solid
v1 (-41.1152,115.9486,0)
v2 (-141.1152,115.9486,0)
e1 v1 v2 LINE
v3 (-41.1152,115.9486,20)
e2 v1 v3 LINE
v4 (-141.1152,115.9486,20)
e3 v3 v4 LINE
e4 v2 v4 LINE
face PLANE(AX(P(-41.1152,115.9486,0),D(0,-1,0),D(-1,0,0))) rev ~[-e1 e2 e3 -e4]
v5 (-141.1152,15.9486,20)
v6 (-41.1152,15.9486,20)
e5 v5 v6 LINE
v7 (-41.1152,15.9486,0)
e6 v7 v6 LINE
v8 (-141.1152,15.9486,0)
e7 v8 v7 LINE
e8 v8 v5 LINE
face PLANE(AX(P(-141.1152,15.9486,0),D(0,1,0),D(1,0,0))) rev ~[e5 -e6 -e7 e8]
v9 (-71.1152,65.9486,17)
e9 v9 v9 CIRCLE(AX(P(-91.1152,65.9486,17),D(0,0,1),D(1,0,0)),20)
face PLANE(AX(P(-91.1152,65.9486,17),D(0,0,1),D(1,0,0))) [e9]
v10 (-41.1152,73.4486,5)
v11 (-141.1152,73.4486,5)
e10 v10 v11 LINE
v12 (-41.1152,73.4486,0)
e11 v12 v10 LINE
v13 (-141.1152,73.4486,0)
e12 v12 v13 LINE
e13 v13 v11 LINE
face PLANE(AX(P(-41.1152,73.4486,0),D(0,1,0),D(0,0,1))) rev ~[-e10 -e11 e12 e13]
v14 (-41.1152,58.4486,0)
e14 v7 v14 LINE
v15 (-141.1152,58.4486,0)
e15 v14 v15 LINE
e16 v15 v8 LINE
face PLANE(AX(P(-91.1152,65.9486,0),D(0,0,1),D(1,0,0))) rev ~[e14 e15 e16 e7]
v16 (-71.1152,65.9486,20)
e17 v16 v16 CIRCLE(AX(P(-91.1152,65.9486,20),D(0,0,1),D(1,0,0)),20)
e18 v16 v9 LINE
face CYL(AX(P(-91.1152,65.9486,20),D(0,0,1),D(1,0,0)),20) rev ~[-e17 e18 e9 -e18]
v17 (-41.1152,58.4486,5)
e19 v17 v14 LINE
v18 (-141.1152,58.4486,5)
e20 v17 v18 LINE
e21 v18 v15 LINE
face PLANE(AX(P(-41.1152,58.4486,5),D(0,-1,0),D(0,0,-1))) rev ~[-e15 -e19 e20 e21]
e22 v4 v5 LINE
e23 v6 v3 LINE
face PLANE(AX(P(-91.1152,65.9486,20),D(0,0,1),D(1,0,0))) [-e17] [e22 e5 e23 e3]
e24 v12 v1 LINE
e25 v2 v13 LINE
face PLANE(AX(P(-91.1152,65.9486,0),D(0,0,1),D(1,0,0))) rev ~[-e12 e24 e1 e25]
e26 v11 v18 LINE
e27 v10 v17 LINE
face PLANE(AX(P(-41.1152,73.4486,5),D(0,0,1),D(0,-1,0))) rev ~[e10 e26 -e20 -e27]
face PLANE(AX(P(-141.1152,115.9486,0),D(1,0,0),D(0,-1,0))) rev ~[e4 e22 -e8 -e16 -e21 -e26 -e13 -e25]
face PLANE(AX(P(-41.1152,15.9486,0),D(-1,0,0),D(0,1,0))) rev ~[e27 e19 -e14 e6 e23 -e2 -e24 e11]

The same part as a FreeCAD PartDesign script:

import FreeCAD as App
import Part
import Sketcher
from FreeCAD import Vector
Q = App.Units.Quantity


def add_polygon(sketch, points):
    """Adds a closed chain of lines whose ends are joined by coincident constraints."""
    first, n = sketch.GeometryCount, len(points)
    for a, b in zip(points, points[1:] + points[:1]):
        sketch.addGeometry(Part.LineSegment(App.Vector(*a, 0), App.Vector(*b, 0)), False)
    for i in range(n):
        sketch.addConstraint(Sketcher.Constraint("Coincident", first + i, 2, first + (i + 1) % n, 1))

doc = App.newDocument("Part")
body = doc.addObject("PartDesign::Body", "Body")

sketch1 = body.newObject("Sketcher::SketchObject", "Sketch")
sketch1.AttachmentSupport = (doc.getObject("XY_Plane"), [""])
sketch1.MapMode = "FlatFace"
add_polygon(sketch1, [(-141, 116), (-141, 16), (-41, 16), (-41, 116)])
sketch1.addConstraint(Sketcher.Constraint("Vertical", 0))
sketch1.addConstraint(Sketcher.Constraint("Horizontal", 1))
sketch1.addConstraint(Sketcher.Constraint("Vertical", 2))
sketch1.addConstraint(Sketcher.Constraint("Horizontal", 3))
sketch1.addConstraint(Sketcher.Constraint("Equal", 3, 0))
sketch1.addConstraint(Sketcher.Constraint("DistanceX", 1, 1, 1, 2, Q("100 mm")))
sketch1.addConstraint(Sketcher.Constraint("DistanceX", 0, 2, -1, 1, Q("141.1152 mm")))
sketch1.addConstraint(Sketcher.Constraint("DistanceY", -1, 1, 0, 2, Q("15.9486 mm")))
pad1 = body.newObject("PartDesign::Pad", "Pad")
pad1.Profile = sketch1
pad1.Length = 20

sketch2 = body.newObject("Sketcher::SketchObject", "Sketch001")
sketch2.AttachmentSupport = (doc.getObject("XY_Plane"), [""])
sketch2.MapMode = "FlatFace"
sketch2.AttachmentOffset = App.Placement(Vector(0, 0, 20), App.Rotation())
sketch2.addGeometry(Part.Circle(Vector(-91, 66, 0), Vector(0, 0, 1), 20), False)
sketch2.addConstraint(Sketcher.Constraint("Diameter", 0, Q("40 mm")))
sketch2.addConstraint(Sketcher.Constraint("DistanceX", 0, 3, -1, 1, Q("91.1152 mm")))
sketch2.addConstraint(Sketcher.Constraint("DistanceY", -1, 1, 0, 3, Q("65.9486 mm")))
pocket1 = body.newObject("PartDesign::Pocket", "Pocket")
pocket1.Profile = sketch2
pocket1.Length = 3

sketch3 = body.newObject("Sketcher::SketchObject", "Sketch002")
sketch3.AttachmentSupport = (doc.getObject("YZ_Plane"), [""])
sketch3.MapMode = "FlatFace"
sketch3.AttachmentOffset = App.Placement(Vector(0, 0, -41.1152), App.Rotation())
add_polygon(sketch3, [(58, 5), (58, 0), (73, 0), (73, 5)])
sketch3.addConstraint(Sketcher.Constraint("Vertical", 0))
sketch3.addConstraint(Sketcher.Constraint("Horizontal", 1))
sketch3.addConstraint(Sketcher.Constraint("Vertical", 2))
sketch3.addConstraint(Sketcher.Constraint("Horizontal", 3))
sketch3.addConstraint(Sketcher.Constraint("PointOnObject", 0, 2, -1))
sketch3.addConstraint(Sketcher.Constraint("DistanceX", 1, 1, 1, 2, Q("15 mm")))
sketch3.addConstraint(Sketcher.Constraint("DistanceY", 0, 2, 0, 1, Q("5 mm")))
sketch3.addConstraint(Sketcher.Constraint("DistanceX", -1, 1, 0, 2, Q("58.4486 mm")))
pocket2 = body.newObject("PartDesign::Pocket", "Pocket001")
pocket2.Profile = sketch3
pocket2.Type = "ThroughAll"

doc.recompute()
